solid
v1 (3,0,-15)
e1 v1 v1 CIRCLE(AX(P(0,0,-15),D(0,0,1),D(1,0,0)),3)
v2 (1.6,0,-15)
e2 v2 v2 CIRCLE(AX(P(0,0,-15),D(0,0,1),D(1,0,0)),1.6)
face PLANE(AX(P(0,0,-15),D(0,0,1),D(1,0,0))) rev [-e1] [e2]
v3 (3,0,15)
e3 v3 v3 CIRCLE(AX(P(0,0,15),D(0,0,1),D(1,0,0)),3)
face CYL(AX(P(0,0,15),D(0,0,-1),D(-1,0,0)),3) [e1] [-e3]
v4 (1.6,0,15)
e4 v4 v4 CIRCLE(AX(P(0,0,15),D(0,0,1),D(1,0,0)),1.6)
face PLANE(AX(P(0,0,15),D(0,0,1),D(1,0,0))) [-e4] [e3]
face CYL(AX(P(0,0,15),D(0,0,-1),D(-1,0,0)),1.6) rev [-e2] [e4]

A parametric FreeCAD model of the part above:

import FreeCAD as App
import Part
import Sketcher
from FreeCAD import Vector
Q = App.Units.Quantity

doc = App.newDocument("Part")
params = doc.addObject("Spreadsheet::Sheet", "Params")
for row, (alias, value) in enumerate([
    ("sketch1_diameter", "6 mm"),
    ("sketch1_diameter2", "3.2 mm"),
    ("pad1_length", "15 mm"),
    ("pad1_length2", "15 mm"),
], start=1):
    params.set(f"A{row}", alias)
    params.set(f"B{row}", "=" + value)
    params.setAlias(f"B{row}", alias)

body = doc.addObject("PartDesign::Body", "Body")

# Sketch on XY plane
sketch1 = body.newObject("Sketcher::SketchObject", "Sketch")
sketch1.AttachmentSupport = (doc.getObject("XY_Plane"), [""])
sketch1.MapMode = "FlatFace"
sketch1.addGeometry([
    Part.Circle(Vector(0, 0, 0), Vector(0, 0, 1), 3),
    Part.Circle(Vector(0, 0, 0), Vector(0, 0, 1), 1.6),
], False)
sketch1.addConstraint([
    Sketcher.Constraint("Coincident", 0, 3, -1, 1),
    Sketcher.Constraint("Coincident", 1, 3, -1, 1),
    Sketcher.Constraint("Diameter", 0, Q("6 mm")),
    Sketcher.Constraint("Diameter", 1, Q("3.2 mm")),
])
sketch1.setExpression("Constraints[2]", "Params.sketch1_diameter")
sketch1.setExpression("Constraints[3]", "Params.sketch1_diameter2")
pad1 = body.newObject("PartDesign::Pad", "Pad")
pad1.Profile = sketch1
pad1.Type = "TwoLengths"
pad1.setExpression("Length", "Params.pad1_length")
pad1.setExpression("Length2", "Params.pad1_length2")

doc.recompute()
